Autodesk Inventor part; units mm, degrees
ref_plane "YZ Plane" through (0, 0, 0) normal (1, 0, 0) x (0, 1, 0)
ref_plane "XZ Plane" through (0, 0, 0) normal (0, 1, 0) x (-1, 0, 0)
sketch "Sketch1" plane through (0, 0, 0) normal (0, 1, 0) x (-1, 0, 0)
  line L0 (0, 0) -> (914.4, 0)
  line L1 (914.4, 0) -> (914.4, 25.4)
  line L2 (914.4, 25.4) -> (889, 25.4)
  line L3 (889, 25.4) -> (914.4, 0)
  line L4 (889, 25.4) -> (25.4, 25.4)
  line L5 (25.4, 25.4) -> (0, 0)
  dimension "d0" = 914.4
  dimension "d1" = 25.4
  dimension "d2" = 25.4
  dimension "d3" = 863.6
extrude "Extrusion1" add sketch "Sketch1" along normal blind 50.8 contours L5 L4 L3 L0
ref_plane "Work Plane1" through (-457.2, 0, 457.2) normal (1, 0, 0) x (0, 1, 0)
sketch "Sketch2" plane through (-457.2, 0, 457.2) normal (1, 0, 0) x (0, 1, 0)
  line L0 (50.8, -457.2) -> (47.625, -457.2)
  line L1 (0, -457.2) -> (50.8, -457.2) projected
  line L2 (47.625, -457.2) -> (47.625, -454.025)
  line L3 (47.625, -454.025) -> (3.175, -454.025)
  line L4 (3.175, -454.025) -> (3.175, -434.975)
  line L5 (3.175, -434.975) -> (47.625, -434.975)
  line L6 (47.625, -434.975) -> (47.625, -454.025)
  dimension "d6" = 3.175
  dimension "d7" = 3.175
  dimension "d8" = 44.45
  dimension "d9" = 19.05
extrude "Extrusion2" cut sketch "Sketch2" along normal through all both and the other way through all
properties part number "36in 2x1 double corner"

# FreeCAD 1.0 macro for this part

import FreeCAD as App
import Part
import Sketcher
from FreeCAD import Vector
Q = App.Units.Quantity


def add_polygon(sketch, points):
    """Adds a closed chain of lines whose ends are joined by coincident constraints."""
    first, n = sketch.GeometryCount, len(points)
    for a, b in zip(points, points[1:] + points[:1]):
        sketch.addGeometry(Part.LineSegment(App.Vector(*a, 0), App.Vector(*b, 0)), False)
    for i in range(n):
        sketch.addConstraint(Sketcher.Constraint("Coincident", first + i, 2, first + (i + 1) % n, 1))

doc = App.newDocument("Part")
body = doc.addObject("PartDesign::Body", "Body")

# Sketch on XZ plane
sketch1 = doc.addObject("Sketcher::SketchObject", "Sketch")
body.addObject(sketch1)
sketch1.AttachmentSupport = (doc.XZ_Plane, [""])
sketch1.MapMode = "FlatFace"
add_polygon(sketch1, [(-25, 25), (0, 0), (-914, 0), (-889, 25)])  # lines 0-3
sketch1.addConstraint([
    Sketcher.Constraint("Horizontal", 1),
    Sketcher.Constraint("Horizontal", 3),
    Sketcher.Constraint("Coincident", 0, 2, -1, 1),
    Sketcher.Constraint("Perpendicular", 0, 2),
    Sketcher.Constraint("Equal", 0, 2),
    Sketcher.Constraint("DistanceX", 1, 2, 1, 1, Q("36 in")),
    Sketcher.Constraint("DistanceX", 3, 1, 3, 2, Q("34 in")),
])
pad1 = doc.addObject("PartDesign::Pad", "Pad")
body.addObject(pad1)
pad1.Profile = sketch1
pad1.Length = Q("2 in")
pad1.Reversed = True

# Sketch on YZ plane
sketch2 = doc.addObject("Sketcher::SketchObject", "Sketch001")
body.addObject(sketch2)
sketch2.AttachmentSupport = (doc.YZ_Plane, [""])
sketch2.MapMode = "FlatFace"
sketch2.AttachmentOffset = App.Placement(Vector(0, 0, -18 * 25.4), App.Rotation())
add_polygon(sketch2, [(3, 3), (48, 3), (48, 22), (3, 22)])  # lines 0-3
sketch2.addConstraint([
    Sketcher.Constraint("Horizontal", 0),
    Sketcher.Constraint("Vertical", 1),
    Sketcher.Constraint("Horizontal", 2),
    Sketcher.Constraint("Vertical", 3),
    Sketcher.Constraint("DistanceX", 0, 1, 0, 2, Q("1.75 in")),
    Sketcher.Constraint("DistanceY", 1, 1, 1, 2, Q("0.75 in")),
    Sketcher.Constraint("DistanceY", -1, 1, 0, 2, Q("0.125 in")),
    Sketcher.Constraint("DistanceX", -1, 1, 2, 2, Q("0.125 in")),
])
pocket1 = doc.addObject("PartDesign::Pocket", "Pocket")
body.addObject(pocket1)
pocket1.Profile = sketch2
pocket1.Type = "ThroughAll"
pocket1.Midplane = True

doc.recompute()
